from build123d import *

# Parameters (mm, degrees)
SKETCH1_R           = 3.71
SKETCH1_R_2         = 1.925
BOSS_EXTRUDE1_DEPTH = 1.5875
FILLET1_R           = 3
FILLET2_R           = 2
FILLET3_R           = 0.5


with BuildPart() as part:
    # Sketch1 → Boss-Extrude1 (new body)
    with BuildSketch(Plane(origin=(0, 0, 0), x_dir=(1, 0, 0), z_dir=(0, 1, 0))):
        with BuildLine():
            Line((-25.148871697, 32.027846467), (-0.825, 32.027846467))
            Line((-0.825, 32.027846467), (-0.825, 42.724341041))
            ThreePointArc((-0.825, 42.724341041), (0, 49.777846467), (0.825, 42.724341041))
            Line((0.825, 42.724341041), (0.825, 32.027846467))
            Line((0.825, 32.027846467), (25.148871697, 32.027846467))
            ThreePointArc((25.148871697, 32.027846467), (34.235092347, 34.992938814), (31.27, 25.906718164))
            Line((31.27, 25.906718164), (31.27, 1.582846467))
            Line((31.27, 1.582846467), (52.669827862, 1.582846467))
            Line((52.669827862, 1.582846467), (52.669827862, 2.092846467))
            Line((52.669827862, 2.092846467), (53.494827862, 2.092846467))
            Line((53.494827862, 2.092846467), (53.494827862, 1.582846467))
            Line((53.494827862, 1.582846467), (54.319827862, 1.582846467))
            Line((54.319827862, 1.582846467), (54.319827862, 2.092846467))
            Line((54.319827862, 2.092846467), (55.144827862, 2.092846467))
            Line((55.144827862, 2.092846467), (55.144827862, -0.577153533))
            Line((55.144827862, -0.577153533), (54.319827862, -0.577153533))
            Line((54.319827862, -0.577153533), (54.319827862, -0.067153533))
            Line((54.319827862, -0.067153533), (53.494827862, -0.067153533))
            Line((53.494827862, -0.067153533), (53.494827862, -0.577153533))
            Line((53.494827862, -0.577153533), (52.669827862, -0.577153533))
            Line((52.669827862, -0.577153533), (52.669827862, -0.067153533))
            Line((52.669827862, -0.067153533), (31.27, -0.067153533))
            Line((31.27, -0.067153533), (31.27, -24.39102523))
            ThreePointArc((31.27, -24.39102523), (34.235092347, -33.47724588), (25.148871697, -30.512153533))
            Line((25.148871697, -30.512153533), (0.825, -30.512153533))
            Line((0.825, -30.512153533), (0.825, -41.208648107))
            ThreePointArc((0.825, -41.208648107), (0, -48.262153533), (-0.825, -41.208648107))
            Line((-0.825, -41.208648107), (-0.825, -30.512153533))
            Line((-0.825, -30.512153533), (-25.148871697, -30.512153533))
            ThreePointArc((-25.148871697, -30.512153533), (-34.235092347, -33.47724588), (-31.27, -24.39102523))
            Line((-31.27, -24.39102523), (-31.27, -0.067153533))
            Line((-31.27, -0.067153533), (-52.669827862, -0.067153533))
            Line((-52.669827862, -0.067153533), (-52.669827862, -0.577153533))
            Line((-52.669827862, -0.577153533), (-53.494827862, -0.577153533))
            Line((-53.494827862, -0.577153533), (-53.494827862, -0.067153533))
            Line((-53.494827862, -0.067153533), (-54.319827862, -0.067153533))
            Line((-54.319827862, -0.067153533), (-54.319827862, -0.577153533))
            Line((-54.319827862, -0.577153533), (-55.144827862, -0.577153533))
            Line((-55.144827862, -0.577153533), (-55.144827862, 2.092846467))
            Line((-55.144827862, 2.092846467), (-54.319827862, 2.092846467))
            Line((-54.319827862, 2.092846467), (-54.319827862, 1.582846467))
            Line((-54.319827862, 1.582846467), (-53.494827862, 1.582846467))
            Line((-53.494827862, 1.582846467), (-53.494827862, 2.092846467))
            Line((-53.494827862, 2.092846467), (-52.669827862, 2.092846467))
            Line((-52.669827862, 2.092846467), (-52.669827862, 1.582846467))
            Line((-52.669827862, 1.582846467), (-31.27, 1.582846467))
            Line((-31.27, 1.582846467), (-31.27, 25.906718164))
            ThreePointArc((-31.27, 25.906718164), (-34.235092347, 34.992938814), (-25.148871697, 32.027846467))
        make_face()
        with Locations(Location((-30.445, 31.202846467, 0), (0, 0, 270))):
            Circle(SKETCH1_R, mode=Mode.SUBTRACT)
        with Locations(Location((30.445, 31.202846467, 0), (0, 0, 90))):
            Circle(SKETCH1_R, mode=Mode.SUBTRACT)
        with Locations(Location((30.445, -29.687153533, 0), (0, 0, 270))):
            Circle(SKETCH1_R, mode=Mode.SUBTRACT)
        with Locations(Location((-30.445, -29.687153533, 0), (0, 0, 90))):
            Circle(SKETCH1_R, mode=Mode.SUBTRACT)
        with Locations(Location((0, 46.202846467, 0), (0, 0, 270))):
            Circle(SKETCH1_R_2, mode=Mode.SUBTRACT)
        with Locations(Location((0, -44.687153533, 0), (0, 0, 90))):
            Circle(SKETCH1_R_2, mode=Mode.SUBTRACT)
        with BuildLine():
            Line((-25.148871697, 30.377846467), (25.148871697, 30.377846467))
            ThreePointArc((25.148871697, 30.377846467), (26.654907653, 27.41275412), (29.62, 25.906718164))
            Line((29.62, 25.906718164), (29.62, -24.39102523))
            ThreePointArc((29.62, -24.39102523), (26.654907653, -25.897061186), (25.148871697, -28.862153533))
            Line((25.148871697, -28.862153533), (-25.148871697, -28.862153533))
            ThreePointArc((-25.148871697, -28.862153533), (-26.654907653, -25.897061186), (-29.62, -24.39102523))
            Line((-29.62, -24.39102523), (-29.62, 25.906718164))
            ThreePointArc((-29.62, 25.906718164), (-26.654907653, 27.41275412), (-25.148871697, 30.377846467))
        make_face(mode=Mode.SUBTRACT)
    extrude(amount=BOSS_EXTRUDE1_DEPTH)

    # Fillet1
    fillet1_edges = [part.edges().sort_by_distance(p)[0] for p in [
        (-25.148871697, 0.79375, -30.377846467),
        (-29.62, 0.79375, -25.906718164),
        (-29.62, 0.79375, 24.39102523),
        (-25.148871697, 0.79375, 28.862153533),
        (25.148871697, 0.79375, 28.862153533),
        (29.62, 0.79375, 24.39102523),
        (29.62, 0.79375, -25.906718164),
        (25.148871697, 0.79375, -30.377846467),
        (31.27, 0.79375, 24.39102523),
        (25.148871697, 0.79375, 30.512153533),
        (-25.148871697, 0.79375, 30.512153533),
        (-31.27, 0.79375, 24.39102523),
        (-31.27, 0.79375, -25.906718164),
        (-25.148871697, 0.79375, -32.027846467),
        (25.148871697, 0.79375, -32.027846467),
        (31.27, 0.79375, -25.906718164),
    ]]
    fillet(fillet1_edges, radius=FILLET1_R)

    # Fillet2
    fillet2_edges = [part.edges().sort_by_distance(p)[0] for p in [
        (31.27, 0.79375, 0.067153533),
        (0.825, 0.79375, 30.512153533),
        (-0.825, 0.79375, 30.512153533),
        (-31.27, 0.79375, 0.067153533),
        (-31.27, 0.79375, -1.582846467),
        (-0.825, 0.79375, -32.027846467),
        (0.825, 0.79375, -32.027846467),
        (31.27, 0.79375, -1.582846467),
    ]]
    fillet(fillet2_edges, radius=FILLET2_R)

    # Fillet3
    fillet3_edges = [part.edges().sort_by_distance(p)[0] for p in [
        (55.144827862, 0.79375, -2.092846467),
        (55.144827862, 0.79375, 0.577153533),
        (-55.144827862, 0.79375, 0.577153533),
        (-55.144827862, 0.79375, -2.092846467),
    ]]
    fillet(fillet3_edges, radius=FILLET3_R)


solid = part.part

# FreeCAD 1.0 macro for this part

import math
import FreeCAD as App
import Part
import Sketcher
from FreeCAD import Vector


def edges_at(feature, points):
    """Names of the edges that pass closest to the given points."""
    edges = feature.Shape.Edges
    near = lambda p: min(range(len(edges)), key=lambda i: edges[i].distToShape(Part.Vertex(*p))[0])
    return sorted({f"Edge{near(p) + 1}" for p in points})

doc = App.newDocument("Part")
body = doc.addObject("PartDesign::Body", "Body")

sketch1 = body.newObject("Sketcher::SketchObject", "Sketch")
sketch1.AttachmentSupport = (doc.getObject("XZ_Plane"), [""])
sketch1.MapMode = "FlatFace"
sketch1.addGeometry([
    Part.LineSegment(Vector(-0.825, -32.027846, 0), Vector(-25.148872, -32.027846, 0)),
    Part.ArcOfCircle(Part.Circle(Vector(-30.445, -31.202846, 0), Vector(0, 0, 1), 5.36), math.radians(98.854044), math.radians(351.145956)),
    Part.LineSegment(Vector(-31.27, -25.906718, 0), Vector(-31.27, -1.582846, 0)),
    Part.LineSegment(Vector(-31.27, -1.582846, 0), Vector(-52.669828, -1.582846, 0)),
    Part.LineSegment(Vector(-52.669828, -1.582846, 0), Vector(-52.669828, -2.092846, 0)),
    Part.LineSegment(Vector(-52.669828, -2.092846, 0), Vector(-53.494828, -2.092846, 0)),
    Part.LineSegment(Vector(-53.494828, -2.092846, 0), Vector(-53.494828, -1.582846, 0)),
    Part.LineSegment(Vector(-53.494828, -1.582846, 0), Vector(-54.319828, -1.582846, 0)),
    Part.LineSegment(Vector(-54.319828, -1.582846, 0), Vector(-54.319828, -2.092846, 0)),
    Part.LineSegment(Vector(-54.319828, -2.092846, 0), Vector(-55.144828, -2.092846, 0)),
    Part.LineSegment(Vector(-55.144828, -2.092846, 0), Vector(-55.144828, 0.577154, 0)),
    Part.LineSegment(Vector(-55.144828, 0.577154, 0), Vector(-54.319828, 0.577154, 0)),
    Part.LineSegment(Vector(-54.319828, 0.577154, 0), Vector(-54.319828, 0.067154, 0)),
    Part.LineSegment(Vector(-54.319828, 0.067154, 0), Vector(-53.494828, 0.067154, 0)),
    Part.LineSegment(Vector(-53.494828, 0.067154, 0), Vector(-53.494828, 0.577154, 0)),
    Part.LineSegment(Vector(-53.494828, 0.577154, 0), Vector(-52.669828, 0.577154, 0)),
    Part.LineSegment(Vector(-52.669828, 0.577154, 0), Vector(-52.669828, 0.067154, 0)),
    Part.LineSegment(Vector(-52.669828, 0.067154, 0), Vector(-31.27, 0.067154, 0)),
    Part.LineSegment(Vector(-31.27, 0.067154, 0), Vector(-31.27, 24.391025, 0)),
    Part.ArcOfCircle(Part.Circle(Vector(-30.445, 29.687154, 0), Vector(0, 0, 1), 5.36), math.radians(8.854044), math.radians(261.145956)),
    Part.LineSegment(Vector(-25.148872, 30.512154, 0), Vector(-0.825, 30.512154, 0)),
    Part.LineSegment(Vector(-0.825, 30.512154, 0), Vector(-0.825, 41.208648, 0)),
    Part.ArcOfCircle(Part.Circle(Vector(0, 44.687154, 0), Vector(0, 0, 1), 3.575), math.radians(-76.657636), math.radians(256.657636)),
    Part.LineSegment(Vector(0.825, 41.208648, 0), Vector(0.825, 30.512154, 0)),
    Part.LineSegment(Vector(0.825, 30.512154, 0), Vector(25.148872, 30.512154, 0)),
    Part.ArcOfCircle(Part.Circle(Vector(30.445, 29.687154, 0), Vector(0, 0, 1), 5.36), math.radians(-81.145956), math.radians(171.145956)),
    Part.LineSegment(Vector(31.27, 24.391025, 0), Vector(31.27, 0.067154, 0)),
    Part.LineSegment(Vector(31.27, 0.067154, 0), Vector(52.669828, 0.067154, 0)),
    Part.LineSegment(Vector(52.669828, 0.067154, 0), Vector(52.669828, 0.577154, 0)),
    Part.LineSegment(Vector(52.669828, 0.577154, 0), Vector(53.494828, 0.577154, 0)),
    Part.LineSegment(Vector(53.494828, 0.577154, 0), Vector(53.494828, 0.067154, 0)),
    Part.LineSegment(Vector(53.494828, 0.067154, 0), Vector(54.319828, 0.067154, 0)),
    Part.LineSegment(Vector(54.319828, 0.067154, 0), Vector(54.319828, 0.577154, 0)),
    Part.LineSegment(Vector(54.319828, 0.577154, 0), Vector(55.144828, 0.577154, 0)),
    Part.LineSegment(Vector(55.144828, 0.577154, 0), Vector(55.144828, -2.092846, 0)),
    Part.LineSegment(Vector(55.144828, -2.092846, 0), Vector(54.319828, -2.092846, 0)),
    Part.LineSegment(Vector(54.319828, -2.092846, 0), Vector(54.319828, -1.582846, 0)),
    Part.LineSegment(Vector(54.319828, -1.582846, 0), Vector(53.494828, -1.582846, 0)),
    Part.LineSegment(Vector(53.494828, -1.582846, 0), Vector(53.494828, -2.092846, 0)),
    Part.LineSegment(Vector(53.494828, -2.092846, 0), Vector(52.669828, -2.092846, 0)),
    Part.LineSegment(Vector(52.669828, -2.092846, 0), Vector(52.669828, -1.582846, 0)),
    Part.LineSegment(Vector(52.669828, -1.582846, 0), Vector(31.27, -1.582846, 0)),
    Part.LineSegment(Vector(31.27, -1.582846, 0), Vector(31.27, -25.906718, 0)),
    Part.ArcOfCircle(Part.Circle(Vector(30.445, -31.202846, 0), Vector(0, 0, 1), 5.36), math.radians(-171.145956), math.radians(81.145956)),
    Part.LineSegment(Vector(25.148872, -32.027846, 0), Vector(0.825, -32.027846, 0)),
    Part.LineSegment(Vector(0.825, -32.027846, 0), Vector(0.825, -42.724341, 0)),
    Part.ArcOfCircle(Part.Circle(Vector(0, -46.202846, 0), Vector(0, 0, 1), 3.575), math.radians(103.342364), math.radians(436.657636)),
    Part.LineSegment(Vector(-0.825, -42.724341, 0), Vector(-0.825, -32.027846, 0)),
    Part.Circle(Vector(30.445, 29.687154, 0), Vector(0, 0, 1), 3.71),
    Part.Circle(Vector(0, 44.687154, 0), Vector(0, 0, 1), 1.925),
    Part.Circle(Vector(-30.445, 29.687154, 0), Vector(0, 0, 1), 3.71),
    Part.LineSegment(Vector(-25.148872, -30.377846, 0), Vector(25.148872, -30.377846, 0)),
    Part.ArcOfCircle(Part.Circle(Vector(30.445, -31.202846, 0), Vector(0, 0, 1), 5.36), math.radians(98.854044), math.radians(171.145956)),
    Part.LineSegment(Vector(29.62, -25.906718, 0), Vector(29.62, 24.391025, 0)),
    Part.ArcOfCircle(Part.Circle(Vector(30.445, 29.687154, 0), Vector(0, 0, 1), 5.36), math.radians(-171.145956), math.radians(-98.854044)),
    Part.LineSegment(Vector(25.148872, 28.862154, 0), Vector(-25.148872, 28.862154, 0)),
    Part.ArcOfCircle(Part.Circle(Vector(-30.445, 29.687154, 0), Vector(0, 0, 1), 5.36), math.radians(-81.145956), math.radians(-8.854044)),
    Part.LineSegment(Vector(-29.62, 24.391025, 0), Vector(-29.62, -25.906718, 0)),
    Part.ArcOfCircle(Part.Circle(Vector(-30.445, -31.202846, 0), Vector(0, 0, 1), 5.36), math.radians(8.854044), math.radians(81.145956)),
    Part.Circle(Vector(30.445, -31.202846, 0), Vector(0, 0, 1), 3.71),
    Part.Circle(Vector(0, -46.202846, 0), Vector(0, 0, 1), 1.925),
    Part.Circle(Vector(-30.445, -31.202846, 0), Vector(0, 0, 1), 3.71),
], False)
sketch1.addConstraint([
    Sketcher.Constraint("Coincident", 0, 2, 1, 2),
    Sketcher.Constraint("Coincident", 1, 1, 2, 1),
    Sketcher.Constraint("Coincident", 2, 2, 3, 1),
    Sketcher.Constraint("Coincident", 3, 2, 4, 1),
    Sketcher.Constraint("Coincident", 4, 2, 5, 1),
    Sketcher.Constraint("Coincident", 5, 2, 6, 1),
    Sketcher.Constraint("Coincident", 6, 2, 7, 1),
    Sketcher.Constraint("Coincident", 7, 2, 8, 1),
    Sketcher.Constraint("Coincident", 8, 2, 9, 1),
    Sketcher.Constraint("Coincident", 9, 2, 10, 1),
    Sketcher.Constraint("Coincident", 10, 2, 11, 1),
    Sketcher.Constraint("Coincident", 11, 2, 12, 1),
    Sketcher.Constraint("Coincident", 12, 2, 13, 1),
    Sketcher.Constraint("Coincident", 13, 2, 14, 1),
    Sketcher.Constraint("Coincident", 14, 2, 15, 1),
    Sketcher.Constraint("Coincident", 15, 2, 16, 1),
    Sketcher.Constraint("Coincident", 16, 2, 17, 1),
    Sketcher.Constraint("Coincident", 17, 2, 18, 1),
    Sketcher.Constraint("Coincident", 18, 2, 19, 2),
    Sketcher.Constraint("Coincident", 19, 1, 20, 1),
    Sketcher.Constraint("Coincident", 20, 2, 21, 1),
    Sketcher.Constraint("Coincident", 21, 2, 22, 2),
    Sketcher.Constraint("Coincident", 22, 1, 23, 1),
    Sketcher.Constraint("Coincident", 23, 2, 24, 1),
    Sketcher.Constraint("Coincident", 24, 2, 25, 2),
    Sketcher.Constraint("Coincident", 25, 1, 26, 1),
    Sketcher.Constraint("Coincident", 26, 2, 27, 1),
    Sketcher.Constraint("Coincident", 27, 2, 28, 1),
    Sketcher.Constraint("Coincident", 28, 2, 29, 1),
    Sketcher.Constraint("Coincident", 29, 2, 30, 1),
    Sketcher.Constraint("Coincident", 30, 2, 31, 1),
    Sketcher.Constraint("Coincident", 31, 2, 32, 1),
    Sketcher.Constraint("Coincident", 32, 2, 33, 1),
    Sketcher.Constraint("Coincident", 33, 2, 34, 1),
    Sketcher.Constraint("Coincident", 34, 2, 35, 1),
    Sketcher.Constraint("Coincident", 35, 2, 36, 1),
    Sketcher.Constraint("Coincident", 36, 2, 37, 1),
    Sketcher.Constraint("Coincident", 37, 2, 38, 1),
    Sketcher.Constraint("Coincident", 38, 2, 39, 1),
    Sketcher.Constraint("Coincident", 39, 2, 40, 1),
    Sketcher.Constraint("Coincident", 40, 2, 41, 1),
    Sketcher.Constraint("Coincident", 41, 2, 42, 1),
    Sketcher.Constraint("Coincident", 42, 2, 43, 2),
    Sketcher.Constraint("Coincident", 43, 1, 44, 1),
    Sketcher.Constraint("Coincident", 44, 2, 45, 1),
    Sketcher.Constraint("Coincident", 45, 2, 46, 2),
    Sketcher.Constraint("Coincident", 46, 1, 47, 1),
    Sketcher.Constraint("Coincident", 47, 2, 0, 1),
    Sketcher.Constraint("Coincident", 51, 2, 52, 2),
    Sketcher.Constraint("Coincident", 52, 1, 53, 1),
    Sketcher.Constraint("Coincident", 53, 2, 54, 2),
    Sketcher.Constraint("Coincident", 54, 1, 55, 1),
    Sketcher.Constraint("Coincident", 55, 2, 56, 2),
    Sketcher.Constraint("Coincident", 56, 1, 57, 1),
    Sketcher.Constraint("Coincident", 57, 2, 58, 2),
    Sketcher.Constraint("Coincident", 58, 1, 51, 1),
    Sketcher.Constraint("Horizontal", 0),
    Sketcher.Constraint("Vertical", 2),
    Sketcher.Constraint("Horizontal", 3),
    Sketcher.Constraint("Vertical", 4),
    Sketcher.Constraint("Horizontal", 5),
    Sketcher.Constraint("Vertical", 6),
    Sketcher.Constraint("Horizontal", 7),
    Sketcher.Constraint("Vertical", 8),
    Sketcher.Constraint("Horizontal", 9),
    Sketcher.Constraint("Vertical", 10),
    Sketcher.Constraint("Horizontal", 11),
    Sketcher.Constraint("Vertical", 12),
    Sketcher.Constraint("Horizontal", 13),
    Sketcher.Constraint("Vertical", 14),
    Sketcher.Constraint("Horizontal", 15),
    Sketcher.Constraint("Vertical", 16),
    Sketcher.Constraint("Horizontal", 17),
    Sketcher.Constraint("Vertical", 18),
    Sketcher.Constraint("Horizontal", 20),
    Sketcher.Constraint("Vertical", 21),
    Sketcher.Constraint("Vertical", 23),
    Sketcher.Constraint("Horizontal", 24),
    Sketcher.Constraint("Vertical", 26),
    Sketcher.Constraint("Horizontal", 27),
    Sketcher.Constraint("Vertical", 28),
    Sketcher.Constraint("Horizontal", 29),
    Sketcher.Constraint("Vertical", 30),
    Sketcher.Constraint("Horizontal", 31),
    Sketcher.Constraint("Vertical", 32),
    Sketcher.Constraint("Horizontal", 33),
    Sketcher.Constraint("Vertical", 34),
    Sketcher.Constraint("Horizontal", 35),
    Sketcher.Constraint("Vertical", 36),
    Sketcher.Constraint("Horizontal", 37),
    Sketcher.Constraint("Vertical", 38),
    Sketcher.Constraint("Horizontal", 39),
    Sketcher.Constraint("Vertical", 40),
    Sketcher.Constraint("Horizontal", 41),
    Sketcher.Constraint("Vertical", 42),
    Sketcher.Constraint("Horizontal", 44),
    Sketcher.Constraint("Vertical", 45),
    Sketcher.Constraint("Vertical", 47),
    Sketcher.Constraint("Horizontal", 51),
    Sketcher.Constraint("Vertical", 53),
    Sketcher.Constraint("Horizontal", 55),
    Sketcher.Constraint("Vertical", 57),
    Sketcher.Constraint("Coincident", 48, 3, 25, 3),
    Sketcher.Constraint("Coincident", 49, 3, 22, 3),
    Sketcher.Constraint("Coincident", 50, 3, 19, 3),
    Sketcher.Constraint("Coincident", 52, 3, 43, 3),
    Sketcher.Constraint("Coincident", 54, 3, 25, 3),
    Sketcher.Constraint("Coincident", 56, 3, 19, 3),
    Sketcher.Constraint("Coincident", 58, 3, 1, 3),
    Sketcher.Constraint("Coincident", 59, 3, 43, 3),
    Sketcher.Constraint("Coincident", 60, 3, 46, 3),
    Sketcher.Constraint("Coincident", 61, 3, 1, 3),
    Sketcher.Constraint("Equal", 1, 19),
    Sketcher.Constraint("Equal", 19, 25),
    Sketcher.Constraint("Equal", 25, 43),
    Sketcher.Constraint("Equal", 22, 46),
    Sketcher.Constraint("Equal", 48, 50),
    Sketcher.Constraint("Equal", 43, 52),
    Sketcher.Constraint("Equal", 52, 54),
    Sketcher.Constraint("Equal", 54, 56),
    Sketcher.Constraint("Equal", 56, 58),
    Sketcher.Constraint("Equal", 50, 59),
    Sketcher.Constraint("Equal", 49, 60),
    Sketcher.Constraint("Equal", 59, 61),
    Sketcher.Constraint("Symmetric", 19, 3, 25, 3, -2),
    Sketcher.Constraint("Symmetric", 1, 3, 43, 3, -2),
    Sketcher.Constraint("Symmetric", 21, 2, 22, 1, -2),
    Sketcher.Constraint("Symmetric", 17, 2, 26, 2, -2),
    Sketcher.Constraint("Symmetric", 15, 2, 28, 2, -2),
    Sketcher.Constraint("Symmetric", 13, 2, 30, 2, -2),
    Sketcher.Constraint("Symmetric", 11, 2, 32, 2, -2),
    Sketcher.Constraint("Symmetric", 9, 2, 34, 2, -2),
    Sketcher.Constraint("Symmetric", 7, 2, 36, 2, -2),
    Sketcher.Constraint("Symmetric", 5, 2, 38, 2, -2),
    Sketcher.Constraint("Symmetric", 3, 2, 40, 2, -2),
    Sketcher.Constraint("Symmetric", 45, 2, 46, 1, -2),
    Sketcher.Constraint("Horizontal", 3, 2, 6, 2),
    Sketcher.Constraint("Horizontal", 5, 2, 8, 2),
    Sketcher.Constraint("Horizontal", 11, 2, 14, 2),
    Sketcher.Constraint("Horizontal", 13, 2, 16, 2),
    Sketcher.Constraint("Horizontal", 20, 2, 23, 2),
    Sketcher.Constraint("Horizontal", 1, 1, 42, 2),
    Sketcher.Constraint("Horizontal", 0, 2, 43, 1),
    Sketcher.Constraint("Horizontal", 42, 2, 52, 1),
    Sketcher.Constraint("Horizontal", 25, 1, 53, 2),
    Sketcher.Constraint("Horizontal", 53, 2, 56, 1),
    Sketcher.Constraint("Vertical", 1, 3, 19, 3),
    Sketcher.Constraint("Vertical", 8, 2, 11, 2),
    Sketcher.Constraint("Vertical", 6, 2, 13, 2),
    Sketcher.Constraint("Vertical", 4, 2, 15, 2),
    Sketcher.Constraint("Vertical", 0, 2, 19, 1),
    Sketcher.Constraint("Vertical", 23, 2, 44, 2),
    Sketcher.Constraint("Vertical", 43, 1, 51, 2),
    Sketcher.Constraint("Vertical", 51, 2, 54, 1),
    Sketcher.Constraint("Equal", 5, 7),
    Sketcher.Constraint("Equal", 7, 9),
    Sketcher.Constraint("Equal", 44, 2),
    Sketcher.Constraint("Equal", 8, 12),
    Sketcher.Constraint("Equal", 2, 18),
    Sketcher.Constraint("Equal", 23, 45),
    Sketcher.Constraint("Equal", 55, 53),
    Sketcher.Constraint("Diameter", 48, 7.42),
    Sketcher.Constraint("Diameter", 49, 3.85),
    Sketcher.Constraint("Radius", 1, 5.36),
    Sketcher.Constraint("Radius", 22, 3.575),
    Sketcher.Constraint("DistanceY", 4, 2, 4, 1, 0.51),
    Sketcher.Constraint("DistanceY", 10, 1, 10, 2, 2.67),
    Sketcher.Constraint("DistanceX", 5, 2, 5, 1, 0.825),
    Sketcher.Constraint("DistanceX", 1, 1, -1, 1, 31.27),
    Sketcher.Constraint("DistanceX", -1, 1, 52, 1, 29.62),
    Sketcher.Constraint("DistanceX", 0, 2, 0, 1, 24.323872),
    Sketcher.Constraint("DistanceX", 3, 2, 3, 1, 21.399828),
    Sketcher.Constraint("DistanceY", 21, 1, 21, 2, 10.696495),
    Sketcher.Constraint("DistanceY", 1, 1, -1, 1, 25.906718),
])
pad1 = body.newObject("PartDesign::Pad", "Pad")
pad1.Profile = sketch1
pad1.Length = 1.5875
pad1.Reversed = True
doc.recompute()

fillet = body.newObject("PartDesign::Fillet", "Fillet")
fillet.Base = (pad1, edges_at(pad1, [
    (-25.149, 0.794, -30.378),
    (-29.62, 0.794, -25.907),
    (-29.62, 0.794, 24.391),
    (-25.149, 0.794, 28.862),
    (25.149, 0.794, 28.862),
    (29.62, 0.794, 24.391),
    (29.62, 0.794, -25.907),
    (25.149, 0.794, -30.378),
    (31.27, 0.794, 24.391),
    (25.149, 0.794, 30.512),
    (-25.149, 0.794, 30.512),
    (-31.27, 0.794, 24.391),
    (-31.27, 0.794, -25.907),
    (-25.149, 0.794, -32.028),
    (25.149, 0.794, -32.028),
    (31.27, 0.794, -25.907),
]))
fillet.Radius = 3
doc.recompute()

fillet2 = body.newObject("PartDesign::Fillet", "Fillet001")
fillet2.Base = (fillet, edges_at(fillet, [
    (31.27, 0.794, 0.067),
    (0.825, 0.794, 30.512),
    (-0.825, 0.794, 30.512),
    (-31.27, 0.794, 0.067),
    (-31.27, 0.794, -1.583),
    (-0.825, 0.794, -32.028),
    (0.825, 0.794, -32.028),
    (31.27, 0.794, -1.583),
]))
fillet2.Radius = 2
doc.recompute()

fillet3 = body.newObject("PartDesign::Fillet", "Fillet002")
fillet3.Base = (fillet2, edges_at(fillet2, [
    (55.145, 0.794, -2.093),
    (55.145, 0.794, 0.577),
    (-55.145, 0.794, 0.577),
    (-55.145, 0.794, -2.093),
]))
fillet3.Radius = 0.5

doc.recompute()
